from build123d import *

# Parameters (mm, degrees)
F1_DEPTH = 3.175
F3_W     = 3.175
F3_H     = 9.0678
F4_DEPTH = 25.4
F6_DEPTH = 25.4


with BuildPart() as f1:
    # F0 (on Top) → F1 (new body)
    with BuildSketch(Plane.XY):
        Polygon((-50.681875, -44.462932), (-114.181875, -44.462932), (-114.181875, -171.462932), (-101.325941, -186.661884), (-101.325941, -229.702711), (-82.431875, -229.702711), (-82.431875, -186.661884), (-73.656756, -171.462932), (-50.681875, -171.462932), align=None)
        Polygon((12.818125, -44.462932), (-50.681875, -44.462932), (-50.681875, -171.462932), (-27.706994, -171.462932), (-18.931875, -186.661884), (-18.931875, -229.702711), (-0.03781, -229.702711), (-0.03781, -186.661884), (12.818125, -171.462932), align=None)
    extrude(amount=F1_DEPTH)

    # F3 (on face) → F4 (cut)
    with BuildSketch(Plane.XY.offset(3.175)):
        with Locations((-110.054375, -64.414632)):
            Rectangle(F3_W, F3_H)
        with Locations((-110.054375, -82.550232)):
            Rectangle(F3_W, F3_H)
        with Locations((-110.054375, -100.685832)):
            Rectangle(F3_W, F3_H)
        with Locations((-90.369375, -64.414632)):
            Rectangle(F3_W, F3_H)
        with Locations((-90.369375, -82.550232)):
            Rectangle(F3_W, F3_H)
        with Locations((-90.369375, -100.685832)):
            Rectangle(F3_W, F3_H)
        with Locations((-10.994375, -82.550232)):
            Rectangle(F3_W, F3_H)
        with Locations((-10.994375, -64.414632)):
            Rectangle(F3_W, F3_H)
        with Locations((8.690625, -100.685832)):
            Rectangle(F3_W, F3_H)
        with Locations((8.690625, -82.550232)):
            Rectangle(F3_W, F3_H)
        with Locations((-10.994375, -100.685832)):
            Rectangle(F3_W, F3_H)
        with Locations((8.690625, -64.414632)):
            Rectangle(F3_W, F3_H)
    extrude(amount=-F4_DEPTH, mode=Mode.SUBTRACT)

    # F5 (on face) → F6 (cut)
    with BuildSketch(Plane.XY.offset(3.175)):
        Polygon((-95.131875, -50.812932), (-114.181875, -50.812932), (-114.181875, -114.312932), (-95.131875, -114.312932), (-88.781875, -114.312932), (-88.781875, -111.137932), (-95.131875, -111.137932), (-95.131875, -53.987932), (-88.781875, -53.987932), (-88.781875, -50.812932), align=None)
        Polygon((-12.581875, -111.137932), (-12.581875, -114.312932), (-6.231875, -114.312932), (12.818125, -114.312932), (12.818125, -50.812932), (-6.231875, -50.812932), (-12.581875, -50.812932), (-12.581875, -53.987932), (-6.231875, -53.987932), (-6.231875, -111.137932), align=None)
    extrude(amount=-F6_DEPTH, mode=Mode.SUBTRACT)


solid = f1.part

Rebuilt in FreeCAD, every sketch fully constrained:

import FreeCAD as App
import Part
import Sketcher

V = App.Vector
Q = App.Units.Quantity


def add_polygon(sketch, points):
    """Adds a closed chain of lines whose ends are joined by coincident constraints."""
    first, n = sketch.GeometryCount, len(points)
    for a, b in zip(points, points[1:] + points[:1]):
        sketch.addGeometry(Part.LineSegment(App.Vector(*a, 0), App.Vector(*b, 0)), False)
    for i in range(n):
        sketch.addConstraint(Sketcher.Constraint("Coincident", first + i, 2, first + (i + 1) % n, 1))

doc = App.newDocument("Part")
body = doc.addObject("PartDesign::Body", "Body")

sketch1 = body.newObject("Sketcher::SketchObject", "Sketch")
sketch1.AttachmentSupport = (doc.getObject("XY_Plane"), [""])
sketch1.MapMode = "FlatFace"
add_polygon(sketch1, [(-114, -44), (-114, -171), (-101, -187), (-101, -230), (-82, -230), (-82, -187), (-74, -171), (-28, -171), (-19, -187), (-19, -230), (0, -230), (0, -187), (13, -171), (13, -44)])
sketch1.addConstraint([
    Sketcher.Constraint("Vertical", 0),
    Sketcher.Constraint("Vertical", 2),
    Sketcher.Constraint("Horizontal", 3),
    Sketcher.Constraint("Vertical", 4),
    Sketcher.Constraint("Horizontal", 6),
    Sketcher.Constraint("Vertical", 8),
    Sketcher.Constraint("Horizontal", 9),
    Sketcher.Constraint("Vertical", 10),
    Sketcher.Constraint("Vertical", 12),
    Sketcher.Constraint("Horizontal", 13),
    Sketcher.Constraint("Horizontal", 1, 2, 4, 2),
    Sketcher.Constraint("Horizontal", 0, 2, 5, 2),
    Sketcher.Constraint("Horizontal", 4, 2, 7, 2),
    Sketcher.Constraint("Horizontal", 3, 2, 8, 2),
    Sketcher.Constraint("Horizontal", 7, 2, 10, 2),
    Sketcher.Constraint("Horizontal", 6, 2, 11, 2),
    Sketcher.Constraint("Equal", 3, 9),
    Sketcher.Constraint("Equal", 13, 0),
    Sketcher.Constraint("Equal", 5, 7),
    Sketcher.Constraint("Equal", 1, 11),
    Sketcher.Constraint("DistanceX", 13, 2, 13, 1, Q("5 in")),
    Sketcher.Constraint("Angle", 5, Q("60 deg")),
    Sketcher.Constraint("DistanceX", 4, 2, 7, 2, Q("2.5 in")),
    Sketcher.Constraint("Distance", 5, Q("17.550238 mm")),
    Sketcher.Constraint("DistanceX", 3, 1, 3, 2, Q("18.894066 mm")),
    Sketcher.Constraint("DistanceY", 2, 2, 2, 1, Q("43.040827 mm")),
    Sketcher.Constraint("DistanceY", 0, 2, -1, 1, Q("171.462932 mm")),
    Sketcher.Constraint("DistanceX", 1, 2, -1, 1, Q("101.325941 mm")),
])
pad1 = body.newObject("PartDesign::Pad", "Pad")
pad1.Profile = sketch1
pad1.Length = Q("0.125 in")

sketch2 = body.newObject("Sketcher::SketchObject", "Sketch001")
sketch2.AttachmentSupport = (doc.getObject("XY_Plane"), [""])
sketch2.MapMode = "FlatFace"
sketch2.AttachmentOffset = App.Placement(V(0, 0, 0.125 * 25.4), App.Rotation())
add_polygon(sketch2, [(-111.6, -59.9), (-111.6, -68.9), (-108.5, -68.9), (-108.5, -59.9)])
add_polygon(sketch2, [(-111.6, -78), (-111.6, -87.1), (-108.5, -87.1), (-108.5, -78)])
add_polygon(sketch2, [(-111.6, -96.2), (-111.6, -105.2), (-108.5, -105.2), (-108.5, -96.2)])
add_polygon(sketch2, [(-92, -59.9), (-92, -68.9), (-88.8, -68.9), (-88.8, -59.9)])
add_polygon(sketch2, [(-92, -78), (-92, -87.1), (-88.8, -87.1), (-88.8, -78)])
add_polygon(sketch2, [(-92, -96.2), (-92, -105.2), (-88.8, -105.2), (-88.8, -96.2)])
add_polygon(sketch2, [(-12.6, -78), (-12.6, -87.1), (-9.4, -87.1), (-9.4, -78)])
add_polygon(sketch2, [(-12.6, -59.9), (-12.6, -68.9), (-9.4, -68.9), (-9.4, -59.9)])
add_polygon(sketch2, [(7.1, -96.2), (7.1, -105.2), (10.3, -105.2), (10.3, -96.2)])
add_polygon(sketch2, [(7.1, -78), (7.1, -87.1), (10.3, -87.1), (10.3, -78)])
add_polygon(sketch2, [(-12.6, -96.2), (-12.6, -105.2), (-9.4, -105.2), (-9.4, -96.2)])
add_polygon(sketch2, [(7.1, -59.9), (7.1, -68.9), (10.3, -68.9), (10.3, -59.9)])
sketch2.addConstraint([
    Sketcher.Constraint("Vertical", 0),
    Sketcher.Constraint("Horizontal", 1),
    Sketcher.Constraint("Vertical", 2),
    Sketcher.Constraint("Horizontal", 3),
    Sketcher.Constraint("Vertical", 4),
    Sketcher.Constraint("Horizontal", 5),
    Sketcher.Constraint("Vertical", 6),
    Sketcher.Constraint("Horizontal", 7),
    Sketcher.Constraint("Vertical", 8),
    Sketcher.Constraint("Horizontal", 9),
    Sketcher.Constraint("Vertical", 10),
    Sketcher.Constraint("Horizontal", 11),
    Sketcher.Constraint("Vertical", 12),
    Sketcher.Constraint("Horizontal", 13),
    Sketcher.Constraint("Vertical", 14),
    Sketcher.Constraint("Horizontal", 15),
    Sketcher.Constraint("Vertical", 16),
    Sketcher.Constraint("Horizontal", 17),
    Sketcher.Constraint("Vertical", 18),
    Sketcher.Constraint("Horizontal", 19),
    Sketcher.Constraint("Vertical", 20),
    Sketcher.Constraint("Horizontal", 21),
    Sketcher.Constraint("Vertical", 22),
    Sketcher.Constraint("Horizontal", 23),
    Sketcher.Constraint("Vertical", 24),
    Sketcher.Constraint("Horizontal", 25),
    Sketcher.Constraint("Vertical", 26),
    Sketcher.Constraint("Horizontal", 27),
    Sketcher.Constraint("Vertical", 28),
    Sketcher.Constraint("Horizontal", 29),
    Sketcher.Constraint("Vertical", 30),
    Sketcher.Constraint("Horizontal", 31),
    Sketcher.Constraint("Vertical", 32),
    Sketcher.Constraint("Horizontal", 33),
    Sketcher.Constraint("Vertical", 34),
    Sketcher.Constraint("Horizontal", 35),
    Sketcher.Constraint("Vertical", 36),
    Sketcher.Constraint("Horizontal", 37),
    Sketcher.Constraint("Vertical", 38),
    Sketcher.Constraint("Horizontal", 39),
    Sketcher.Constraint("Vertical", 40),
    Sketcher.Constraint("Horizontal", 41),
    Sketcher.Constraint("Vertical", 42),
    Sketcher.Constraint("Horizontal", 43),
    Sketcher.Constraint("Vertical", 44),
    Sketcher.Constraint("Horizontal", 45),
    Sketcher.Constraint("Vertical", 46),
    Sketcher.Constraint("Horizontal", 47),
    Sketcher.Constraint("Horizontal", 1, 2, 12, 2),
    Sketcher.Constraint("Horizontal", 3, 2, 14, 2),
    Sketcher.Constraint("Horizontal", 5, 2, 16, 2),
    Sketcher.Constraint("Horizontal", 7, 2, 18, 2),
    Sketcher.Constraint("Horizontal", 9, 2, 20, 2),
    Sketcher.Constraint("Horizontal", 11, 2, 22, 2),
    Sketcher.Constraint("Horizontal", 17, 2, 24, 2),
    Sketcher.Constraint("Horizontal", 19, 2, 26, 2),
    Sketcher.Constraint("Horizontal", 13, 2, 28, 2),
    Sketcher.Constraint("Horizontal", 15, 2, 30, 2),
    Sketcher.Constraint("Horizontal", 21, 2, 32, 2),
    Sketcher.Constraint("Horizontal", 23, 2, 34, 2),
    Sketcher.Constraint("Horizontal", 25, 2, 36, 2),
    Sketcher.Constraint("Horizontal", 27, 2, 38, 2),
    Sketcher.Constraint("Horizontal", 33, 2, 40, 2),
    Sketcher.Constraint("Horizontal", 35, 2, 42, 2),
    Sketcher.Constraint("Horizontal", 29, 2, 44, 2),
    Sketcher.Constraint("Horizontal", 31, 2, 46, 2),
    Sketcher.Constraint("Vertical", 3, 2, 4, 2),
    Sketcher.Constraint("Vertical", 2, 2, 5, 2),
    Sketcher.Constraint("Vertical", 7, 2, 8, 2),
    Sketcher.Constraint("Vertical", 6, 2, 9, 2),
    Sketcher.Constraint("Vertical", 15, 2, 16, 2),
    Sketcher.Constraint("Vertical", 14, 2, 17, 2),
    Sketcher.Constraint("Vertical", 19, 2, 20, 2),
    Sketcher.Constraint("Vertical", 18, 2, 21, 2),
    Sketcher.Constraint("Vertical", 27, 2, 28, 2),
    Sketcher.Constraint("Vertical", 26, 2, 29, 2),
    Sketcher.Constraint("Vertical", 35, 2, 36, 2),
    Sketcher.Constraint("Vertical", 34, 2, 37, 2),
    Sketcher.Constraint("Vertical", 31, 2, 40, 2),
    Sketcher.Constraint("Vertical", 30, 2, 41, 2),
    Sketcher.Constraint("Vertical", 39, 2, 44, 2),
    Sketcher.Constraint("Vertical", 38, 2, 45, 2),
    Sketcher.Constraint("Equal", 11, 13),
    Sketcher.Constraint("Equal", 23, 25),
    Sketcher.Constraint("Equal", 31, 33),
    Sketcher.Constraint("Equal", 2, 4),
    Sketcher.Constraint("Equal", 6, 8),
    Sketcher.Constraint("DistanceX", 17, 2, 24, 2, Q("3 in")),
    Sketcher.Constraint("DistanceX", 0, 2, 13, 2, Q("0.9 in")),
    Sketcher.Constraint("DistanceX", 24, 2, 33, 2, Q("0.9 in")),
    Sketcher.Constraint("DistanceX", 1, 1, 1, 2, Q("0.125 in")),
    Sketcher.Constraint("DistanceY", 0, 2, 0, 1, Q("0.357 in")),
    Sketcher.Constraint("DistanceY", 4, 2, 0, 2, Q("0.714 in")),
    Sketcher.Constraint("DistanceY", 8, 2, 4, 2, Q("0.714 in")),
    Sketcher.Constraint("DistanceY", 0, 2, -1, 1, Q("68.948532 mm")),
    Sketcher.Constraint("DistanceX", 0, 2, -1, 1, Q("111.641875 mm")),
])
pocket1 = body.newObject("PartDesign::Pocket", "Pocket")
pocket1.Profile = sketch2
pocket1.Length = Q("1 in")

sketch3 = body.newObject("Sketcher::SketchObject", "Sketch002")
sketch3.AttachmentSupport = (doc.getObject("XY_Plane"), [""])
sketch3.MapMode = "FlatFace"
sketch3.AttachmentOffset = App.Placement(V(0, 0, 0.125 * 25.4), App.Rotation())
add_polygon(sketch3, [(-114.2, -50.8), (-114.2, -114.3), (-88.8, -114.3), (-88.8, -111.1), (-95.1, -111.1), (-95.1, -54), (-88.8, -54), (-88.8, -50.8)])
add_polygon(sketch3, [(-12.6, -111.1), (-12.6, -114.3), (12.8, -114.3), (12.8, -50.8), (-12.6, -50.8), (-12.6, -54), (-6.2, -54), (-6.2, -111.1)])
sketch3.addConstraint([
    Sketcher.Constraint("Vertical", 0),
    Sketcher.Constraint("Horizontal", 1),
    Sketcher.Constraint("Vertical", 2),
    Sketcher.Constraint("Horizontal", 3),
    Sketcher.Constraint("Vertical", 4),
    Sketcher.Constraint("Horizontal", 5),
    Sketcher.Constraint("Vertical", 6),
    Sketcher.Constraint("Horizontal", 7),
    Sketcher.Constraint("Vertical", 8),
    Sketcher.Constraint("Horizontal", 9),
    Sketcher.Constraint("Vertical", 10),
    Sketcher.Constraint("Horizontal", 11),
    Sketcher.Constraint("Vertical", 12),
    Sketcher.Constraint("Horizontal", 13),
    Sketcher.Constraint("Vertical", 14),
    Sketcher.Constraint("Horizontal", 15),
    Sketcher.Constraint("Horizontal", 1, 2, 8, 2),
    Sketcher.Constraint("Horizontal", 7, 2, 10, 2),
    Sketcher.Constraint("Horizontal", 5, 2, 12, 2),
    Sketcher.Constraint("Horizontal", 3, 2, 14, 2),
    Sketcher.Constraint("Vertical", 2, 2, 5, 2),
    Sketcher.Constraint("Vertical", 8, 2, 11, 2),
    Sketcher.Constraint("Equal", 7, 9),
    Sketcher.Constraint("Equal", 5, 13),
    Sketcher.Constraint("Equal", 2, 6),
    Sketcher.Constraint("DistanceX", 1, 1, 1, 2, Q("1 in")),
    Sketcher.Constraint("DistanceY", 0, 2, 0, 1, Q("2.5 in")),
    Sketcher.Constraint("DistanceX", 1, 2, 8, 2, Q("3 in")),
    Sketcher.Constraint("DistanceX", 3, 2, 3, 1, Q("0.25 in")),
    Sketcher.Constraint("DistanceY", 4, 1, 4, 2, Q("2.25 in")),
    Sketcher.Constraint("DistanceX", 0, 2, -1, 1, Q("114.181875 mm")),
    Sketcher.Constraint("DistanceY", 0, 2, -1, 1, Q("114.312932 mm")),
])
pocket2 = body.newObject("PartDesign::Pocket", "Pocket001")
pocket2.Profile = sketch3
pocket2.Length = Q("1 in")

doc.recompute()
